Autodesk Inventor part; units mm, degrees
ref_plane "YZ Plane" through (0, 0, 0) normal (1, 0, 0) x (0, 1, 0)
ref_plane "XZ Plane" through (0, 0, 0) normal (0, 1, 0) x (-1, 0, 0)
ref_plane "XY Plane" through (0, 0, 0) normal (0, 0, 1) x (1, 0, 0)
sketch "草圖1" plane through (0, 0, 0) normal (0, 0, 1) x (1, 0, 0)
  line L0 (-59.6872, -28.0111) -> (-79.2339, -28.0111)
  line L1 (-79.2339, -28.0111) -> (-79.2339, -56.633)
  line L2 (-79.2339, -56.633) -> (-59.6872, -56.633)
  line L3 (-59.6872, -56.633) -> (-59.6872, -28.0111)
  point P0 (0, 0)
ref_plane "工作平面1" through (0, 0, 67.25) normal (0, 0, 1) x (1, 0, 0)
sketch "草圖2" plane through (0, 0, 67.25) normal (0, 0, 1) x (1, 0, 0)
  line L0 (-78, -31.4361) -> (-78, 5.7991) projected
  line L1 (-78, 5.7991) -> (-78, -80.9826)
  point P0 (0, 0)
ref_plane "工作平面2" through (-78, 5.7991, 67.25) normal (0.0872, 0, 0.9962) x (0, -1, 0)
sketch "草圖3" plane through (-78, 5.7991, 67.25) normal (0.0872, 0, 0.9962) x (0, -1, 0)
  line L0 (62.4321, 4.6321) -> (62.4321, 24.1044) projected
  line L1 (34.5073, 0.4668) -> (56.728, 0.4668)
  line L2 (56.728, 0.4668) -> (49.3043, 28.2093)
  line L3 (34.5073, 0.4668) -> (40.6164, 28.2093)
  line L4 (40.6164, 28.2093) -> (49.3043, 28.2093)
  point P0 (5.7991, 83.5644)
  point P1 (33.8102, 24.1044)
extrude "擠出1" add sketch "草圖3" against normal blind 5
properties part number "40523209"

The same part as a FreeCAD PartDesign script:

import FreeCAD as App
import Part
import Sketcher
from FreeCAD import Vector
Q = App.Units.Quantity

doc = App.newDocument("Part")
params = doc.addObject("Spreadsheet::Sheet", "Params")
for row, (alias, value) in enumerate([
    ("pad1_length", "5 mm"),
], start=1):
    params.set(f"A{row}", alias)
    params.set(f"B{row}", "=" + value)
    params.setAlias(f"B{row}", alias)

body = doc.addObject("PartDesign::Body", "Body")

sketch1 = body.newObject("Sketcher::SketchObject", "Sketch")
sketch1.Placement = App.Placement(Vector(-78, 5.7991, 67.25), App.Rotation(Vector(0, -1, 0), Vector(0.996194698, 0, -0.087155743), Vector(0.087155743, 0, 0.996194698), "ZXY"))
sketch1.addGeometry(Part.LineSegment(Vector(41, 28, 0), Vector(35, 0, 0)), False)
sketch1.addGeometry(Part.LineSegment(Vector(35, 0, 0), Vector(57, 0, 0)), False)
sketch1.addGeometry(Part.LineSegment(Vector(57, 0, 0), Vector(49, 28, 0)), False)
sketch1.addGeometry(Part.LineSegment(Vector(49, 28, 0), Vector(41, 28, 0)), False)
sketch1.addConstraint(Sketcher.Constraint("Coincident", 0, 2, 1, 1))
sketch1.addConstraint(Sketcher.Constraint("Coincident", 1, 2, 2, 1))
sketch1.addConstraint(Sketcher.Constraint("Coincident", 2, 2, 3, 1))
sketch1.addConstraint(Sketcher.Constraint("Coincident", 3, 2, 0, 1))
sketch1.addConstraint(Sketcher.Constraint("Horizontal", 1))
sketch1.addConstraint(Sketcher.Constraint("Horizontal", 3))
sketch1.addConstraint(Sketcher.Constraint("Angle", 2, Q("104.981 deg")))
sketch1.addConstraint(Sketcher.Constraint("DistanceX", 3, 2, 3, 1, 8.688))
sketch1.addConstraint(Sketcher.Constraint("DistanceX", 1, 1, 1, 2, 22.2207))
sketch1.addConstraint(Sketcher.Constraint("DistanceX", -1, 1, 1, 2, 56.728))
sketch1.addConstraint(Sketcher.Constraint("DistanceX", 0, 2, 2, 2, 14.797))
sketch1.addConstraint(Sketcher.Constraint("DistanceY", -1, 1, 0, 2, 0.4668))
pad1 = body.newObject("PartDesign::Pad", "Pad")
pad1.Profile = sketch1
pad1.setExpression("Length", "Params.pad1_length")
pad1.Reversed = True

doc.recompute()
